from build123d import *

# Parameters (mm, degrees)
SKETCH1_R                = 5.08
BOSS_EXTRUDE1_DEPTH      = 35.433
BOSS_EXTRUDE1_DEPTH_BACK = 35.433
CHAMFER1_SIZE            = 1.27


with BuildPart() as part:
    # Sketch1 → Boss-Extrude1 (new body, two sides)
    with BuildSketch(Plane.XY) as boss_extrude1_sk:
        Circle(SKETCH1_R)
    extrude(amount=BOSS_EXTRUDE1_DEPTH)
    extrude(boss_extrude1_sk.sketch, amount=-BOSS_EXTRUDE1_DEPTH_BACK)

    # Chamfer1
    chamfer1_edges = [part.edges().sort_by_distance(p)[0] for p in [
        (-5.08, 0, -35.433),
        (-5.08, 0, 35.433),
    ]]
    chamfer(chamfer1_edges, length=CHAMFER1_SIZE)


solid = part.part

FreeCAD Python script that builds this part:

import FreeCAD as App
import Part
import Sketcher
from FreeCAD import Vector
Q = App.Units.Quantity


def edges_at(feature, points):
    """Names of the edges that pass closest to the given points."""
    edges = feature.Shape.Edges
    near = lambda p: min(range(len(edges)), key=lambda i: edges[i].distToShape(Part.Vertex(*p))[0])
    return sorted({f"Edge{near(p) + 1}" for p in points})

doc = App.newDocument("Part")
params = doc.addObject("Spreadsheet::Sheet", "Params")
for row, (alias, value) in enumerate([
    ("sketch1_diameter", "0.4 in"),
    ("pad1_length", "1.395 in"),
    ("pad1_length2", "1.395 in"),
    ("chamfer_size", "0.05 in"),
], start=1):
    params.set(f"A{row}", alias)
    params.set(f"B{row}", "=" + value)
    params.setAlias(f"B{row}", alias)

body = doc.addObject("PartDesign::Body", "Body")

# Sketch on XY plane
sketch1 = body.newObject("Sketcher::SketchObject", "Sketch")
sketch1.AttachmentSupport = (doc.getObject("XY_Plane"), [""])
sketch1.MapMode = "FlatFace"
sketch1.addGeometry(Part.Circle(Vector(0, 0, 0), Vector(0, 0, 1), 5), False)
sketch1.addConstraint(Sketcher.Constraint("Coincident", 0, 3, -1, 1))
sketch1.addConstraint(Sketcher.Constraint("Diameter", 0, Q("0.4 in")))
sketch1.setExpression("Constraints[1]", "Params.sketch1_diameter")
pad1 = body.newObject("PartDesign::Pad", "Pad")
pad1.Profile = sketch1
pad1.Type = "TwoLengths"
pad1.setExpression("Length", "Params.pad1_length")
pad1.setExpression("Length2", "Params.pad1_length2")
doc.recompute()

chamfer = body.newObject("PartDesign::Chamfer", "Chamfer")
chamfer.Base = (pad1, edges_at(pad1, [(-5.08, 0, -35.433), (-5.08, 0, 35.433)]))
chamfer.setExpression("Size", "Params.chamfer_size")

doc.recompute()
